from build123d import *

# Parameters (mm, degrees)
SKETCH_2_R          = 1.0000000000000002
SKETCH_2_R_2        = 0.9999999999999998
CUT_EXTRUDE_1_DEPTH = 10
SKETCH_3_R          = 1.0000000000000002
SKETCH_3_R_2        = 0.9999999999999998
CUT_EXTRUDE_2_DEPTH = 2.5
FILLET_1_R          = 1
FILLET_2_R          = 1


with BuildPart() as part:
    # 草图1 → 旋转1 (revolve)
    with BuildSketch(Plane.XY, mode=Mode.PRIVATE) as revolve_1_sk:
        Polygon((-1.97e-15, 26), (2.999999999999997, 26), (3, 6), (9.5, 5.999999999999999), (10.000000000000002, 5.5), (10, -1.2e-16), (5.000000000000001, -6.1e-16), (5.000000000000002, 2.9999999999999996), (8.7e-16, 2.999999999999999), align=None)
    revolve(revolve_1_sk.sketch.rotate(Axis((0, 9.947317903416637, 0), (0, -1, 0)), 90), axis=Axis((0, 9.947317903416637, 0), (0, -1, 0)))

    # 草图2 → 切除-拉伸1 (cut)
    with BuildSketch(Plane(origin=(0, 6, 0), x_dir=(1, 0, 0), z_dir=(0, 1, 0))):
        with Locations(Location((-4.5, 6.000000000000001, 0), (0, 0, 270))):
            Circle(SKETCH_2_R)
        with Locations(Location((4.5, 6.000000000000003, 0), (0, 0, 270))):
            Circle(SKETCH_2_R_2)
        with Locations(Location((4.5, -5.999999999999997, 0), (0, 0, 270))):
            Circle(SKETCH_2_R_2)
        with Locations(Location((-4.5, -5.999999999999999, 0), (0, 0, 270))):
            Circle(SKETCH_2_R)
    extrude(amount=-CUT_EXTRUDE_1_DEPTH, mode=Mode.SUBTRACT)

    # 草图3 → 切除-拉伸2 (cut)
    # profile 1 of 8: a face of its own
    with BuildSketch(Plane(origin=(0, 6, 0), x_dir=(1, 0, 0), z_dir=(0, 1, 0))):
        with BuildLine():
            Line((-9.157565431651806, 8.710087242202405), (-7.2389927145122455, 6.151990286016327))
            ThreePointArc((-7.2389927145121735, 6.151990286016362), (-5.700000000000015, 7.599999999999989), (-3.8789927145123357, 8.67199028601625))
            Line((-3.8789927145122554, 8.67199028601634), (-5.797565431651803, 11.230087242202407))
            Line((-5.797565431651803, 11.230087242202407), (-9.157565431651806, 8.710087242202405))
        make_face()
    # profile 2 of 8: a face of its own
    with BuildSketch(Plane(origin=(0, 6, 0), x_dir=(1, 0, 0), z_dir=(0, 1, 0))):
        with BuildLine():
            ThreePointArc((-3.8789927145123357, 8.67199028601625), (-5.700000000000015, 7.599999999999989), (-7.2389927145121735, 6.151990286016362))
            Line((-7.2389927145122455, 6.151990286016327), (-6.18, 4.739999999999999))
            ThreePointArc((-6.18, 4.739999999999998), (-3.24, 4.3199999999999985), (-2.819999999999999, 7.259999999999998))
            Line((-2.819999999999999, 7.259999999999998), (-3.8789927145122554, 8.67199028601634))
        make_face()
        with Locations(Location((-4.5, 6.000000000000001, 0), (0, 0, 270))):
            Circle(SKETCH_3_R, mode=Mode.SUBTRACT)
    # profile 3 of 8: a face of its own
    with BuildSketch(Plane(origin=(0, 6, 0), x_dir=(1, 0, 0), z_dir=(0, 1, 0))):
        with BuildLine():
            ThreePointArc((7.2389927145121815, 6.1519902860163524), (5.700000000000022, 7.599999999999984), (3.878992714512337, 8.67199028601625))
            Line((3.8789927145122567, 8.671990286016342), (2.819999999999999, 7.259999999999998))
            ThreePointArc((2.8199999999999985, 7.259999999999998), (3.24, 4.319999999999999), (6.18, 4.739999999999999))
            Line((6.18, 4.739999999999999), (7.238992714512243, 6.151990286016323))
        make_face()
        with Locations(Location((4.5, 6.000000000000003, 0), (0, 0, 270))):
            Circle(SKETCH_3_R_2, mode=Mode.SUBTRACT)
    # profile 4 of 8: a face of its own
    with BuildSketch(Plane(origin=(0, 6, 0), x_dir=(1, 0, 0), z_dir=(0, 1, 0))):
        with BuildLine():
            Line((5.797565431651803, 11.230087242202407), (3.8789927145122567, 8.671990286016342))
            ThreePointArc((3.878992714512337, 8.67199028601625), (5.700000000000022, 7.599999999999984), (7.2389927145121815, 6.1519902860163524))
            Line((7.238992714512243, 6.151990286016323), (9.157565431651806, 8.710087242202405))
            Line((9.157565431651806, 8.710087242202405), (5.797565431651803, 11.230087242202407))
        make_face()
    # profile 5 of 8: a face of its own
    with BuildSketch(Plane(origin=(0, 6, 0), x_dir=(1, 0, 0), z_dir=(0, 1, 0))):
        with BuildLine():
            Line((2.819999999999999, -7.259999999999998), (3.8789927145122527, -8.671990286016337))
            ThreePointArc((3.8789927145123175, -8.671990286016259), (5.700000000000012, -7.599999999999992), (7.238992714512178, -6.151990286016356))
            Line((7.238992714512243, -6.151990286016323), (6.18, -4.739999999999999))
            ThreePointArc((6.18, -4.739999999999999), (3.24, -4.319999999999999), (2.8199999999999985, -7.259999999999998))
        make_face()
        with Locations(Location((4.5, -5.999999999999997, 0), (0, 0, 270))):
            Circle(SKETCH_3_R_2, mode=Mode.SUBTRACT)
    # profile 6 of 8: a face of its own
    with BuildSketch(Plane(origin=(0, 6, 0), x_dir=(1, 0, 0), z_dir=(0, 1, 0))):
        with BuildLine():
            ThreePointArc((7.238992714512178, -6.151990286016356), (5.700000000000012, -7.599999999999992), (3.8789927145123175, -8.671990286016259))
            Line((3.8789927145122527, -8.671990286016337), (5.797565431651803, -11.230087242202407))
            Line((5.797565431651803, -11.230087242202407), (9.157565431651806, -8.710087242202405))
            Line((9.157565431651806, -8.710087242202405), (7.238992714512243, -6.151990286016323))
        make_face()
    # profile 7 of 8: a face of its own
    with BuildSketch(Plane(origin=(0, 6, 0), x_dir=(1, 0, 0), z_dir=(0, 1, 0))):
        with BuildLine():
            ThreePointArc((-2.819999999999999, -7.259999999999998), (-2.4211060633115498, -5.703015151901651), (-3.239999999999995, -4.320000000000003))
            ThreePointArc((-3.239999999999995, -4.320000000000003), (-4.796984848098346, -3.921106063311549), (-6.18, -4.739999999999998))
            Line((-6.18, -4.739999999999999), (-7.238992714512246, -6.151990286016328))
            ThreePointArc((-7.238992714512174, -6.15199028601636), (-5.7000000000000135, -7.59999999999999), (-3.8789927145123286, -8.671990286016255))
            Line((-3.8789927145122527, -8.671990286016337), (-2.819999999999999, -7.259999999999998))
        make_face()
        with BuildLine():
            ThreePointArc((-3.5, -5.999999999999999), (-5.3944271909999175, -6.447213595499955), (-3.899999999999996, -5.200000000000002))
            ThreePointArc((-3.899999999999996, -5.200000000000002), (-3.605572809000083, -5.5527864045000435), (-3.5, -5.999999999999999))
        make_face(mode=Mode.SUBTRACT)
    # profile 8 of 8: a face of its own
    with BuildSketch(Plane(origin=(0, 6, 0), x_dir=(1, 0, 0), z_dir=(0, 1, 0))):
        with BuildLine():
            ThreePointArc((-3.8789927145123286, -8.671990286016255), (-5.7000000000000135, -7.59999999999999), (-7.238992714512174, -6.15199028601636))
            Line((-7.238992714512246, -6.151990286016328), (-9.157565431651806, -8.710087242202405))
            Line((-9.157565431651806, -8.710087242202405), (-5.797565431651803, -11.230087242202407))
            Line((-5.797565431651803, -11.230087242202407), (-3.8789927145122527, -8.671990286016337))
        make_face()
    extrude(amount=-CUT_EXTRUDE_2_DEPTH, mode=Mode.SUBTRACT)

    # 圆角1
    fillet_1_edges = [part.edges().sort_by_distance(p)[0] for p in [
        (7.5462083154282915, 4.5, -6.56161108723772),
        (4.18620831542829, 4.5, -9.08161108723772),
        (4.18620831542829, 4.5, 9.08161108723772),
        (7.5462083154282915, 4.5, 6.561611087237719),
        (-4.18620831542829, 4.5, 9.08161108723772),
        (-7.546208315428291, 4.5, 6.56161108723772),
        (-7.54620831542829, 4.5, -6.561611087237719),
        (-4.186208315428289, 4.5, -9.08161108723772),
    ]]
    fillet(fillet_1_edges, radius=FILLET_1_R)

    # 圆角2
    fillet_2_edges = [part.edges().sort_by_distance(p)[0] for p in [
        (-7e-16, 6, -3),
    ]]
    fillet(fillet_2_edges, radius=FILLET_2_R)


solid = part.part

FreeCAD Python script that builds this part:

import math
import FreeCAD as App
import Part
import Sketcher

V = App.Vector
Q = App.Units.Quantity


def edges_at(feature, points):
    """Names of the edges that pass closest to the given points."""
    edges = feature.Shape.Edges
    near = lambda p: min(range(len(edges)), key=lambda i: edges[i].distToShape(Part.Vertex(*p))[0])
    return sorted({f"Edge{near(p) + 1}" for p in points})

doc = App.newDocument("Part")
params = doc.addObject("Spreadsheet::Sheet", "Params")
for row, (alias, value) in enumerate([
    ("sketch1_width", "3 mm"),
    ("sketch1_width2", "5 mm"),
    ("sketch1_height", "23 mm"),
    ("sketch1_height2", "20 mm"),
    ("sketch1_width3", "6.5 mm"),
    ("revolution_angle", "360 deg"),
    ("sketch2_diameter", "2 mm"),
    ("pocket1_length", "10 mm"),
    ("sketch3_diameter", "2 mm"),
    ("sketch3_radius", "2.1 mm"),
    ("pocket2_length", "2.5 mm"),
    ("fillet_radius", "1 mm"),
    ("fillet2_radius", "1 mm"),
], start=1):
    params.set(f"A{row}", alias)
    params.set(f"B{row}", "=" + value)
    params.setAlias(f"B{row}", alias)

body = doc.addObject("PartDesign::Body", "Body")

sketch1 = doc.addObject("Sketcher::SketchObject", "Sketch")
body.addObject(sketch1)
sketch1.AttachmentSupport = (doc.XY_Plane, [""])
sketch1.MapMode = "FlatFace"
sketch1.addGeometry([
    Part.LineSegment(V(3, 26, 0), V(0, 26, 0)),
    Part.LineSegment(V(0, 26, 0), V(0, 3, 0)),
    Part.LineSegment(V(0, 3, 0), V(5, 3, 0)),
    Part.LineSegment(V(5, 3, 0), V(5, 0, 0)),
    Part.LineSegment(V(5, 0, 0), V(10, 0, 0)),
    Part.LineSegment(V(10, 0, 0), V(10, 5.5, 0)),
    Part.LineSegment(V(10, 5.5, 0), V(9.5, 6, 0)),
    Part.LineSegment(V(9.5, 6, 0), V(3, 6, 0)),
    Part.LineSegment(V(3, 6, 0), V(3, 26, 0)),
], False)
sketch1.addConstraint([
    Sketcher.Constraint("Coincident", 0, 2, 1, 1),
    Sketcher.Constraint("Coincident", 1, 2, 2, 1),
    Sketcher.Constraint("Coincident", 2, 2, 3, 1),
    Sketcher.Constraint("Coincident", 3, 2, 4, 1),
    Sketcher.Constraint("Coincident", 4, 2, 5, 1),
    Sketcher.Constraint("Coincident", 5, 2, 6, 1),
    Sketcher.Constraint("Coincident", 6, 2, 7, 1),
    Sketcher.Constraint("Coincident", 7, 2, 8, 1),
    Sketcher.Constraint("Coincident", 8, 2, 0, 1),
    Sketcher.Constraint("Horizontal", 0),
    Sketcher.Constraint("Vertical", 1),
    Sketcher.Constraint("Horizontal", 2),
    Sketcher.Constraint("Vertical", 3),
    Sketcher.Constraint("Horizontal", 4),
    Sketcher.Constraint("Vertical", 5),
    Sketcher.Constraint("Horizontal", 7),
    Sketcher.Constraint("Vertical", 8),
    Sketcher.Constraint("PointOnObject", 0, 2, -2),
    Sketcher.Constraint("PointOnObject", 3, 2, -1),
    Sketcher.Constraint("Equal", 2, 4),
    Sketcher.Constraint("Equal", 0, 3),
    Sketcher.Constraint("DistanceX", 0, 2, 0, 1, 3.0),
    Sketcher.Constraint("DistanceX", 2, 1, 2, 2, 5.0),
    Sketcher.Constraint("DistanceY", 1, 2, 1, 1, 23.0),
    Sketcher.Constraint("DistanceY", 8, 1, 8, 2, 20.0),
    Sketcher.Constraint("Angle", 6, Q("135 deg")),
    Sketcher.Constraint("DistanceX", 7, 2, 7, 1, 6.5),
])
sketch1.setExpression("Constraints[21]", "Params.sketch1_width")
sketch1.setExpression("Constraints[22]", "Params.sketch1_width2")
sketch1.setExpression("Constraints[23]", "Params.sketch1_height")
sketch1.setExpression("Constraints[24]", "Params.sketch1_height2")
sketch1.setExpression("Constraints[26]", "Params.sketch1_width3")
revolution = doc.addObject("PartDesign::Revolution", "Revolution")
body.addObject(revolution)
revolution.Profile = sketch1
revolution.ReferenceAxis = (sketch1, ["V_Axis"])
revolution.setExpression("Angle", "Params.revolution_angle")

sketch2 = doc.addObject("Sketcher::SketchObject", "Sketch001")
body.addObject(sketch2)
sketch2.AttachmentSupport = (doc.XZ_Plane, [""])
sketch2.MapMode = "FlatFace"
sketch2.AttachmentOffset = App.Placement(V(0, 0, -6), App.Rotation())
sketch2.addGeometry([
    Part.Circle(V(-4.5, -6, 0), V(0, 0, 1), 1),
    Part.Circle(V(4.5, -6, 0), V(0, 0, 1), 1),
    Part.Circle(V(4.5, 6, 0), V(0, 0, 1), 1),
    Part.Circle(V(-4.5, 6, 0), V(0, 0, 1), 1),
], False)
sketch2.addConstraint([
    Sketcher.Constraint("Equal", 0, 1),
    Sketcher.Constraint("Equal", 1, 2),
    Sketcher.Constraint("Equal", 2, 3),
    Sketcher.Constraint("Symmetric", 0, 3, 2, 3, -1, 1),
    Sketcher.Constraint("Symmetric", 1, 3, 3, 3, -1, 1),
    Sketcher.Constraint("Symmetric", 0, 3, 1, 3, -2),
    Sketcher.Constraint("Diameter", 0, 2.0),
    Sketcher.Constraint("DistanceY", 0, 3, -1, 1, 6.0),
    Sketcher.Constraint("DistanceX", 0, 3, 1, 3, 9.0),
])
sketch2.setExpression("Constraints[6]", "Params.sketch2_diameter")
pocket1 = doc.addObject("PartDesign::Pocket", "Pocket")
body.addObject(pocket1)
pocket1.Profile = sketch2
pocket1.setExpression("Length", "Params.pocket1_length")
pocket1.Reversed = True

sketch3 = doc.addObject("Sketcher::SketchObject", "Sketch002")
body.addObject(sketch3)
sketch3.AttachmentSupport = (doc.XZ_Plane, [""])
sketch3.MapMode = "FlatFace"
sketch3.AttachmentOffset = App.Placement(V(0, 0, -6), App.Rotation())
sketch3.addGeometry([
    Part.LineSegment(V(-9.2, -8.7, 0), V(-6.2, -4.7, 0)),
    Part.ArcOfCircle(Part.Circle(V(-4.5, -6, 0), V(0, 0, 1), 2.1), math.radians(-37), math.radians(143)),
    Part.LineSegment(V(-2.8, -7.3, 0), V(-5.8, -11.2, 0)),
    Part.LineSegment(V(-5.8, -11.2, 0), V(-9.2, -8.7, 0)),
    Part.Circle(V(-4.5, -6, 0), V(0, 0, 1), 1),
    Part.LineSegment(V(6.2, -4.7, 0), V(9.2, -8.7, 0)),
    Part.LineSegment(V(9.2, -8.7, 0), V(5.8, -11.2, 0)),
    Part.LineSegment(V(5.8, -11.2, 0), V(2.8, -7.3, 0)),
    Part.ArcOfCircle(Part.Circle(V(4.5, -6, 0), V(0, 0, 1), 2.1), math.radians(37), math.radians(217)),
    Part.Circle(V(4.5, -6, 0), V(0, 0, 1), 1),
    Part.LineSegment(V(2.8, 7.3, 0), V(5.8, 11.2, 0)),
    Part.LineSegment(V(5.8, 11.2, 0), V(9.2, 8.7, 0)),
    Part.LineSegment(V(9.2, 8.7, 0), V(6.2, 4.7, 0)),
    Part.ArcOfCircle(Part.Circle(V(4.5, 6, 0), V(0, 0, 1), 2.1), math.radians(143), math.radians(323)),
    Part.Circle(V(4.5, 6, 0), V(0, 0, 1), 1),
    Part.ArcOfCircle(Part.Circle(V(-4.5, 6, 0), V(0, 0, 1), 2.1), math.radians(-143), math.radians(37)),
    Part.LineSegment(V(-6.2, 4.7, 0), V(-9.2, 8.7, 0)),
    Part.LineSegment(V(-9.2, 8.7, 0), V(-5.8, 11.2, 0)),
    Part.LineSegment(V(-5.8, 11.2, 0), V(-2.8, 7.3, 0)),
    Part.Circle(V(-4.5, 6, 0), V(0, 0, 1), 1),
], False)
sketch3.addConstraint([
    Sketcher.Constraint("Tangent", 0, 2, 1, 2),
    Sketcher.Constraint("Tangent", 1, 1, 2, 1),
    Sketcher.Constraint("Coincident", 2, 2, 3, 1),
    Sketcher.Constraint("Coincident", 3, 2, 0, 1),
    Sketcher.Constraint("Coincident", 5, 2, 6, 1),
    Sketcher.Constraint("Coincident", 6, 2, 7, 1),
    Sketcher.Constraint("Tangent", 7, 2, 8, 2),
    Sketcher.Constraint("Tangent", 8, 1, 5, 1),
    Sketcher.Constraint("Coincident", 10, 2, 11, 1),
    Sketcher.Constraint("Coincident", 11, 2, 12, 1),
    Sketcher.Constraint("Tangent", 12, 2, 13, 2),
    Sketcher.Constraint("Tangent", 13, 1, 10, 1),
    Sketcher.Constraint("Tangent", 15, 1, 16, 1),
    Sketcher.Constraint("Coincident", 16, 2, 17, 1),
    Sketcher.Constraint("Coincident", 17, 2, 18, 1),
    Sketcher.Constraint("Tangent", 18, 2, 15, 2),
    Sketcher.Constraint("Coincident", 4, 3, 1, 3),
    Sketcher.Constraint("Coincident", 9, 3, 8, 3),
    Sketcher.Constraint("Coincident", 14, 3, 13, 3),
    Sketcher.Constraint("Coincident", 19, 3, 15, 3),
    Sketcher.Constraint("Equal", 1, 8),
    Sketcher.Constraint("Equal", 4, 9),
    Sketcher.Constraint("Equal", 8, 13),
    Sketcher.Constraint("Equal", 9, 14),
    Sketcher.Constraint("Equal", 13, 15),
    Sketcher.Constraint("Equal", 14, 19),
    Sketcher.Constraint("Symmetric", 1, 3, 13, 3, -1, 1),
    Sketcher.Constraint("Symmetric", 8, 3, 15, 3, -1, 1),
    Sketcher.Constraint("Symmetric", 2, 2, 10, 2, -1, 1),
    Sketcher.Constraint("Symmetric", 3, 2, 11, 2, -1, 1),
    Sketcher.Constraint("Symmetric", 5, 2, 16, 2, -1, 1),
    Sketcher.Constraint("Symmetric", 6, 2, 17, 2, -1, 1),
    Sketcher.Constraint("Symmetric", 1, 3, 8, 3, -2),
    Sketcher.Constraint("Symmetric", 3, 2, 5, 2, -2),
    Sketcher.Constraint("Symmetric", 2, 2, 6, 2, -2),
    Sketcher.Constraint("Parallel", 0, 2),
    Sketcher.Constraint("Perpendicular", 2, 3),
    Sketcher.Constraint("Diameter", 4, 2.0),
    Sketcher.Constraint("Radius", 1, 2.1),
    Sketcher.Constraint("DistanceY", 1, 3, -1, 1, 6.0),
    Sketcher.Constraint("DistanceX", 1, 3, 8, 3, 9.0),
    Sketcher.Constraint("DistanceX", 0, 2, -1, 1, 6.18),
    Sketcher.Constraint("Distance", 0, 4.962609),
])
sketch3.setExpression("Constraints[37]", "Params.sketch3_diameter")
sketch3.setExpression("Constraints[38]", "Params.sketch3_radius")
pocket2 = doc.addObject("PartDesign::Pocket", "Pocket001")
body.addObject(pocket2)
pocket2.Profile = sketch3
pocket2.setExpression("Length", "Params.pocket2_length")
pocket2.Reversed = True
doc.recompute()

fillet = doc.addObject("PartDesign::Fillet", "Fillet")
body.addObject(fillet)
fillet.Base = (pocket2, edges_at(pocket2, [
    (7.546, 4.5, -6.562),
    (4.186, 4.5, -9.082),
    (4.186, 4.5, 9.082),
    (7.546, 4.5, 6.562),
    (-4.186, 4.5, 9.082),
    (-7.546, 4.5, 6.562),
    (-7.546, 4.5, -6.562),
    (-4.186, 4.5, -9.082),
]))
fillet.setExpression("Radius", "Params.fillet_radius")
doc.recompute()

fillet2 = doc.addObject("PartDesign::Fillet", "Fillet001")
body.addObject(fillet2)
fillet2.Base = (fillet, edges_at(fillet, [(0, 6, -3)]))
fillet2.setExpression("Radius", "Params.fillet2_radius")

doc.recompute()
